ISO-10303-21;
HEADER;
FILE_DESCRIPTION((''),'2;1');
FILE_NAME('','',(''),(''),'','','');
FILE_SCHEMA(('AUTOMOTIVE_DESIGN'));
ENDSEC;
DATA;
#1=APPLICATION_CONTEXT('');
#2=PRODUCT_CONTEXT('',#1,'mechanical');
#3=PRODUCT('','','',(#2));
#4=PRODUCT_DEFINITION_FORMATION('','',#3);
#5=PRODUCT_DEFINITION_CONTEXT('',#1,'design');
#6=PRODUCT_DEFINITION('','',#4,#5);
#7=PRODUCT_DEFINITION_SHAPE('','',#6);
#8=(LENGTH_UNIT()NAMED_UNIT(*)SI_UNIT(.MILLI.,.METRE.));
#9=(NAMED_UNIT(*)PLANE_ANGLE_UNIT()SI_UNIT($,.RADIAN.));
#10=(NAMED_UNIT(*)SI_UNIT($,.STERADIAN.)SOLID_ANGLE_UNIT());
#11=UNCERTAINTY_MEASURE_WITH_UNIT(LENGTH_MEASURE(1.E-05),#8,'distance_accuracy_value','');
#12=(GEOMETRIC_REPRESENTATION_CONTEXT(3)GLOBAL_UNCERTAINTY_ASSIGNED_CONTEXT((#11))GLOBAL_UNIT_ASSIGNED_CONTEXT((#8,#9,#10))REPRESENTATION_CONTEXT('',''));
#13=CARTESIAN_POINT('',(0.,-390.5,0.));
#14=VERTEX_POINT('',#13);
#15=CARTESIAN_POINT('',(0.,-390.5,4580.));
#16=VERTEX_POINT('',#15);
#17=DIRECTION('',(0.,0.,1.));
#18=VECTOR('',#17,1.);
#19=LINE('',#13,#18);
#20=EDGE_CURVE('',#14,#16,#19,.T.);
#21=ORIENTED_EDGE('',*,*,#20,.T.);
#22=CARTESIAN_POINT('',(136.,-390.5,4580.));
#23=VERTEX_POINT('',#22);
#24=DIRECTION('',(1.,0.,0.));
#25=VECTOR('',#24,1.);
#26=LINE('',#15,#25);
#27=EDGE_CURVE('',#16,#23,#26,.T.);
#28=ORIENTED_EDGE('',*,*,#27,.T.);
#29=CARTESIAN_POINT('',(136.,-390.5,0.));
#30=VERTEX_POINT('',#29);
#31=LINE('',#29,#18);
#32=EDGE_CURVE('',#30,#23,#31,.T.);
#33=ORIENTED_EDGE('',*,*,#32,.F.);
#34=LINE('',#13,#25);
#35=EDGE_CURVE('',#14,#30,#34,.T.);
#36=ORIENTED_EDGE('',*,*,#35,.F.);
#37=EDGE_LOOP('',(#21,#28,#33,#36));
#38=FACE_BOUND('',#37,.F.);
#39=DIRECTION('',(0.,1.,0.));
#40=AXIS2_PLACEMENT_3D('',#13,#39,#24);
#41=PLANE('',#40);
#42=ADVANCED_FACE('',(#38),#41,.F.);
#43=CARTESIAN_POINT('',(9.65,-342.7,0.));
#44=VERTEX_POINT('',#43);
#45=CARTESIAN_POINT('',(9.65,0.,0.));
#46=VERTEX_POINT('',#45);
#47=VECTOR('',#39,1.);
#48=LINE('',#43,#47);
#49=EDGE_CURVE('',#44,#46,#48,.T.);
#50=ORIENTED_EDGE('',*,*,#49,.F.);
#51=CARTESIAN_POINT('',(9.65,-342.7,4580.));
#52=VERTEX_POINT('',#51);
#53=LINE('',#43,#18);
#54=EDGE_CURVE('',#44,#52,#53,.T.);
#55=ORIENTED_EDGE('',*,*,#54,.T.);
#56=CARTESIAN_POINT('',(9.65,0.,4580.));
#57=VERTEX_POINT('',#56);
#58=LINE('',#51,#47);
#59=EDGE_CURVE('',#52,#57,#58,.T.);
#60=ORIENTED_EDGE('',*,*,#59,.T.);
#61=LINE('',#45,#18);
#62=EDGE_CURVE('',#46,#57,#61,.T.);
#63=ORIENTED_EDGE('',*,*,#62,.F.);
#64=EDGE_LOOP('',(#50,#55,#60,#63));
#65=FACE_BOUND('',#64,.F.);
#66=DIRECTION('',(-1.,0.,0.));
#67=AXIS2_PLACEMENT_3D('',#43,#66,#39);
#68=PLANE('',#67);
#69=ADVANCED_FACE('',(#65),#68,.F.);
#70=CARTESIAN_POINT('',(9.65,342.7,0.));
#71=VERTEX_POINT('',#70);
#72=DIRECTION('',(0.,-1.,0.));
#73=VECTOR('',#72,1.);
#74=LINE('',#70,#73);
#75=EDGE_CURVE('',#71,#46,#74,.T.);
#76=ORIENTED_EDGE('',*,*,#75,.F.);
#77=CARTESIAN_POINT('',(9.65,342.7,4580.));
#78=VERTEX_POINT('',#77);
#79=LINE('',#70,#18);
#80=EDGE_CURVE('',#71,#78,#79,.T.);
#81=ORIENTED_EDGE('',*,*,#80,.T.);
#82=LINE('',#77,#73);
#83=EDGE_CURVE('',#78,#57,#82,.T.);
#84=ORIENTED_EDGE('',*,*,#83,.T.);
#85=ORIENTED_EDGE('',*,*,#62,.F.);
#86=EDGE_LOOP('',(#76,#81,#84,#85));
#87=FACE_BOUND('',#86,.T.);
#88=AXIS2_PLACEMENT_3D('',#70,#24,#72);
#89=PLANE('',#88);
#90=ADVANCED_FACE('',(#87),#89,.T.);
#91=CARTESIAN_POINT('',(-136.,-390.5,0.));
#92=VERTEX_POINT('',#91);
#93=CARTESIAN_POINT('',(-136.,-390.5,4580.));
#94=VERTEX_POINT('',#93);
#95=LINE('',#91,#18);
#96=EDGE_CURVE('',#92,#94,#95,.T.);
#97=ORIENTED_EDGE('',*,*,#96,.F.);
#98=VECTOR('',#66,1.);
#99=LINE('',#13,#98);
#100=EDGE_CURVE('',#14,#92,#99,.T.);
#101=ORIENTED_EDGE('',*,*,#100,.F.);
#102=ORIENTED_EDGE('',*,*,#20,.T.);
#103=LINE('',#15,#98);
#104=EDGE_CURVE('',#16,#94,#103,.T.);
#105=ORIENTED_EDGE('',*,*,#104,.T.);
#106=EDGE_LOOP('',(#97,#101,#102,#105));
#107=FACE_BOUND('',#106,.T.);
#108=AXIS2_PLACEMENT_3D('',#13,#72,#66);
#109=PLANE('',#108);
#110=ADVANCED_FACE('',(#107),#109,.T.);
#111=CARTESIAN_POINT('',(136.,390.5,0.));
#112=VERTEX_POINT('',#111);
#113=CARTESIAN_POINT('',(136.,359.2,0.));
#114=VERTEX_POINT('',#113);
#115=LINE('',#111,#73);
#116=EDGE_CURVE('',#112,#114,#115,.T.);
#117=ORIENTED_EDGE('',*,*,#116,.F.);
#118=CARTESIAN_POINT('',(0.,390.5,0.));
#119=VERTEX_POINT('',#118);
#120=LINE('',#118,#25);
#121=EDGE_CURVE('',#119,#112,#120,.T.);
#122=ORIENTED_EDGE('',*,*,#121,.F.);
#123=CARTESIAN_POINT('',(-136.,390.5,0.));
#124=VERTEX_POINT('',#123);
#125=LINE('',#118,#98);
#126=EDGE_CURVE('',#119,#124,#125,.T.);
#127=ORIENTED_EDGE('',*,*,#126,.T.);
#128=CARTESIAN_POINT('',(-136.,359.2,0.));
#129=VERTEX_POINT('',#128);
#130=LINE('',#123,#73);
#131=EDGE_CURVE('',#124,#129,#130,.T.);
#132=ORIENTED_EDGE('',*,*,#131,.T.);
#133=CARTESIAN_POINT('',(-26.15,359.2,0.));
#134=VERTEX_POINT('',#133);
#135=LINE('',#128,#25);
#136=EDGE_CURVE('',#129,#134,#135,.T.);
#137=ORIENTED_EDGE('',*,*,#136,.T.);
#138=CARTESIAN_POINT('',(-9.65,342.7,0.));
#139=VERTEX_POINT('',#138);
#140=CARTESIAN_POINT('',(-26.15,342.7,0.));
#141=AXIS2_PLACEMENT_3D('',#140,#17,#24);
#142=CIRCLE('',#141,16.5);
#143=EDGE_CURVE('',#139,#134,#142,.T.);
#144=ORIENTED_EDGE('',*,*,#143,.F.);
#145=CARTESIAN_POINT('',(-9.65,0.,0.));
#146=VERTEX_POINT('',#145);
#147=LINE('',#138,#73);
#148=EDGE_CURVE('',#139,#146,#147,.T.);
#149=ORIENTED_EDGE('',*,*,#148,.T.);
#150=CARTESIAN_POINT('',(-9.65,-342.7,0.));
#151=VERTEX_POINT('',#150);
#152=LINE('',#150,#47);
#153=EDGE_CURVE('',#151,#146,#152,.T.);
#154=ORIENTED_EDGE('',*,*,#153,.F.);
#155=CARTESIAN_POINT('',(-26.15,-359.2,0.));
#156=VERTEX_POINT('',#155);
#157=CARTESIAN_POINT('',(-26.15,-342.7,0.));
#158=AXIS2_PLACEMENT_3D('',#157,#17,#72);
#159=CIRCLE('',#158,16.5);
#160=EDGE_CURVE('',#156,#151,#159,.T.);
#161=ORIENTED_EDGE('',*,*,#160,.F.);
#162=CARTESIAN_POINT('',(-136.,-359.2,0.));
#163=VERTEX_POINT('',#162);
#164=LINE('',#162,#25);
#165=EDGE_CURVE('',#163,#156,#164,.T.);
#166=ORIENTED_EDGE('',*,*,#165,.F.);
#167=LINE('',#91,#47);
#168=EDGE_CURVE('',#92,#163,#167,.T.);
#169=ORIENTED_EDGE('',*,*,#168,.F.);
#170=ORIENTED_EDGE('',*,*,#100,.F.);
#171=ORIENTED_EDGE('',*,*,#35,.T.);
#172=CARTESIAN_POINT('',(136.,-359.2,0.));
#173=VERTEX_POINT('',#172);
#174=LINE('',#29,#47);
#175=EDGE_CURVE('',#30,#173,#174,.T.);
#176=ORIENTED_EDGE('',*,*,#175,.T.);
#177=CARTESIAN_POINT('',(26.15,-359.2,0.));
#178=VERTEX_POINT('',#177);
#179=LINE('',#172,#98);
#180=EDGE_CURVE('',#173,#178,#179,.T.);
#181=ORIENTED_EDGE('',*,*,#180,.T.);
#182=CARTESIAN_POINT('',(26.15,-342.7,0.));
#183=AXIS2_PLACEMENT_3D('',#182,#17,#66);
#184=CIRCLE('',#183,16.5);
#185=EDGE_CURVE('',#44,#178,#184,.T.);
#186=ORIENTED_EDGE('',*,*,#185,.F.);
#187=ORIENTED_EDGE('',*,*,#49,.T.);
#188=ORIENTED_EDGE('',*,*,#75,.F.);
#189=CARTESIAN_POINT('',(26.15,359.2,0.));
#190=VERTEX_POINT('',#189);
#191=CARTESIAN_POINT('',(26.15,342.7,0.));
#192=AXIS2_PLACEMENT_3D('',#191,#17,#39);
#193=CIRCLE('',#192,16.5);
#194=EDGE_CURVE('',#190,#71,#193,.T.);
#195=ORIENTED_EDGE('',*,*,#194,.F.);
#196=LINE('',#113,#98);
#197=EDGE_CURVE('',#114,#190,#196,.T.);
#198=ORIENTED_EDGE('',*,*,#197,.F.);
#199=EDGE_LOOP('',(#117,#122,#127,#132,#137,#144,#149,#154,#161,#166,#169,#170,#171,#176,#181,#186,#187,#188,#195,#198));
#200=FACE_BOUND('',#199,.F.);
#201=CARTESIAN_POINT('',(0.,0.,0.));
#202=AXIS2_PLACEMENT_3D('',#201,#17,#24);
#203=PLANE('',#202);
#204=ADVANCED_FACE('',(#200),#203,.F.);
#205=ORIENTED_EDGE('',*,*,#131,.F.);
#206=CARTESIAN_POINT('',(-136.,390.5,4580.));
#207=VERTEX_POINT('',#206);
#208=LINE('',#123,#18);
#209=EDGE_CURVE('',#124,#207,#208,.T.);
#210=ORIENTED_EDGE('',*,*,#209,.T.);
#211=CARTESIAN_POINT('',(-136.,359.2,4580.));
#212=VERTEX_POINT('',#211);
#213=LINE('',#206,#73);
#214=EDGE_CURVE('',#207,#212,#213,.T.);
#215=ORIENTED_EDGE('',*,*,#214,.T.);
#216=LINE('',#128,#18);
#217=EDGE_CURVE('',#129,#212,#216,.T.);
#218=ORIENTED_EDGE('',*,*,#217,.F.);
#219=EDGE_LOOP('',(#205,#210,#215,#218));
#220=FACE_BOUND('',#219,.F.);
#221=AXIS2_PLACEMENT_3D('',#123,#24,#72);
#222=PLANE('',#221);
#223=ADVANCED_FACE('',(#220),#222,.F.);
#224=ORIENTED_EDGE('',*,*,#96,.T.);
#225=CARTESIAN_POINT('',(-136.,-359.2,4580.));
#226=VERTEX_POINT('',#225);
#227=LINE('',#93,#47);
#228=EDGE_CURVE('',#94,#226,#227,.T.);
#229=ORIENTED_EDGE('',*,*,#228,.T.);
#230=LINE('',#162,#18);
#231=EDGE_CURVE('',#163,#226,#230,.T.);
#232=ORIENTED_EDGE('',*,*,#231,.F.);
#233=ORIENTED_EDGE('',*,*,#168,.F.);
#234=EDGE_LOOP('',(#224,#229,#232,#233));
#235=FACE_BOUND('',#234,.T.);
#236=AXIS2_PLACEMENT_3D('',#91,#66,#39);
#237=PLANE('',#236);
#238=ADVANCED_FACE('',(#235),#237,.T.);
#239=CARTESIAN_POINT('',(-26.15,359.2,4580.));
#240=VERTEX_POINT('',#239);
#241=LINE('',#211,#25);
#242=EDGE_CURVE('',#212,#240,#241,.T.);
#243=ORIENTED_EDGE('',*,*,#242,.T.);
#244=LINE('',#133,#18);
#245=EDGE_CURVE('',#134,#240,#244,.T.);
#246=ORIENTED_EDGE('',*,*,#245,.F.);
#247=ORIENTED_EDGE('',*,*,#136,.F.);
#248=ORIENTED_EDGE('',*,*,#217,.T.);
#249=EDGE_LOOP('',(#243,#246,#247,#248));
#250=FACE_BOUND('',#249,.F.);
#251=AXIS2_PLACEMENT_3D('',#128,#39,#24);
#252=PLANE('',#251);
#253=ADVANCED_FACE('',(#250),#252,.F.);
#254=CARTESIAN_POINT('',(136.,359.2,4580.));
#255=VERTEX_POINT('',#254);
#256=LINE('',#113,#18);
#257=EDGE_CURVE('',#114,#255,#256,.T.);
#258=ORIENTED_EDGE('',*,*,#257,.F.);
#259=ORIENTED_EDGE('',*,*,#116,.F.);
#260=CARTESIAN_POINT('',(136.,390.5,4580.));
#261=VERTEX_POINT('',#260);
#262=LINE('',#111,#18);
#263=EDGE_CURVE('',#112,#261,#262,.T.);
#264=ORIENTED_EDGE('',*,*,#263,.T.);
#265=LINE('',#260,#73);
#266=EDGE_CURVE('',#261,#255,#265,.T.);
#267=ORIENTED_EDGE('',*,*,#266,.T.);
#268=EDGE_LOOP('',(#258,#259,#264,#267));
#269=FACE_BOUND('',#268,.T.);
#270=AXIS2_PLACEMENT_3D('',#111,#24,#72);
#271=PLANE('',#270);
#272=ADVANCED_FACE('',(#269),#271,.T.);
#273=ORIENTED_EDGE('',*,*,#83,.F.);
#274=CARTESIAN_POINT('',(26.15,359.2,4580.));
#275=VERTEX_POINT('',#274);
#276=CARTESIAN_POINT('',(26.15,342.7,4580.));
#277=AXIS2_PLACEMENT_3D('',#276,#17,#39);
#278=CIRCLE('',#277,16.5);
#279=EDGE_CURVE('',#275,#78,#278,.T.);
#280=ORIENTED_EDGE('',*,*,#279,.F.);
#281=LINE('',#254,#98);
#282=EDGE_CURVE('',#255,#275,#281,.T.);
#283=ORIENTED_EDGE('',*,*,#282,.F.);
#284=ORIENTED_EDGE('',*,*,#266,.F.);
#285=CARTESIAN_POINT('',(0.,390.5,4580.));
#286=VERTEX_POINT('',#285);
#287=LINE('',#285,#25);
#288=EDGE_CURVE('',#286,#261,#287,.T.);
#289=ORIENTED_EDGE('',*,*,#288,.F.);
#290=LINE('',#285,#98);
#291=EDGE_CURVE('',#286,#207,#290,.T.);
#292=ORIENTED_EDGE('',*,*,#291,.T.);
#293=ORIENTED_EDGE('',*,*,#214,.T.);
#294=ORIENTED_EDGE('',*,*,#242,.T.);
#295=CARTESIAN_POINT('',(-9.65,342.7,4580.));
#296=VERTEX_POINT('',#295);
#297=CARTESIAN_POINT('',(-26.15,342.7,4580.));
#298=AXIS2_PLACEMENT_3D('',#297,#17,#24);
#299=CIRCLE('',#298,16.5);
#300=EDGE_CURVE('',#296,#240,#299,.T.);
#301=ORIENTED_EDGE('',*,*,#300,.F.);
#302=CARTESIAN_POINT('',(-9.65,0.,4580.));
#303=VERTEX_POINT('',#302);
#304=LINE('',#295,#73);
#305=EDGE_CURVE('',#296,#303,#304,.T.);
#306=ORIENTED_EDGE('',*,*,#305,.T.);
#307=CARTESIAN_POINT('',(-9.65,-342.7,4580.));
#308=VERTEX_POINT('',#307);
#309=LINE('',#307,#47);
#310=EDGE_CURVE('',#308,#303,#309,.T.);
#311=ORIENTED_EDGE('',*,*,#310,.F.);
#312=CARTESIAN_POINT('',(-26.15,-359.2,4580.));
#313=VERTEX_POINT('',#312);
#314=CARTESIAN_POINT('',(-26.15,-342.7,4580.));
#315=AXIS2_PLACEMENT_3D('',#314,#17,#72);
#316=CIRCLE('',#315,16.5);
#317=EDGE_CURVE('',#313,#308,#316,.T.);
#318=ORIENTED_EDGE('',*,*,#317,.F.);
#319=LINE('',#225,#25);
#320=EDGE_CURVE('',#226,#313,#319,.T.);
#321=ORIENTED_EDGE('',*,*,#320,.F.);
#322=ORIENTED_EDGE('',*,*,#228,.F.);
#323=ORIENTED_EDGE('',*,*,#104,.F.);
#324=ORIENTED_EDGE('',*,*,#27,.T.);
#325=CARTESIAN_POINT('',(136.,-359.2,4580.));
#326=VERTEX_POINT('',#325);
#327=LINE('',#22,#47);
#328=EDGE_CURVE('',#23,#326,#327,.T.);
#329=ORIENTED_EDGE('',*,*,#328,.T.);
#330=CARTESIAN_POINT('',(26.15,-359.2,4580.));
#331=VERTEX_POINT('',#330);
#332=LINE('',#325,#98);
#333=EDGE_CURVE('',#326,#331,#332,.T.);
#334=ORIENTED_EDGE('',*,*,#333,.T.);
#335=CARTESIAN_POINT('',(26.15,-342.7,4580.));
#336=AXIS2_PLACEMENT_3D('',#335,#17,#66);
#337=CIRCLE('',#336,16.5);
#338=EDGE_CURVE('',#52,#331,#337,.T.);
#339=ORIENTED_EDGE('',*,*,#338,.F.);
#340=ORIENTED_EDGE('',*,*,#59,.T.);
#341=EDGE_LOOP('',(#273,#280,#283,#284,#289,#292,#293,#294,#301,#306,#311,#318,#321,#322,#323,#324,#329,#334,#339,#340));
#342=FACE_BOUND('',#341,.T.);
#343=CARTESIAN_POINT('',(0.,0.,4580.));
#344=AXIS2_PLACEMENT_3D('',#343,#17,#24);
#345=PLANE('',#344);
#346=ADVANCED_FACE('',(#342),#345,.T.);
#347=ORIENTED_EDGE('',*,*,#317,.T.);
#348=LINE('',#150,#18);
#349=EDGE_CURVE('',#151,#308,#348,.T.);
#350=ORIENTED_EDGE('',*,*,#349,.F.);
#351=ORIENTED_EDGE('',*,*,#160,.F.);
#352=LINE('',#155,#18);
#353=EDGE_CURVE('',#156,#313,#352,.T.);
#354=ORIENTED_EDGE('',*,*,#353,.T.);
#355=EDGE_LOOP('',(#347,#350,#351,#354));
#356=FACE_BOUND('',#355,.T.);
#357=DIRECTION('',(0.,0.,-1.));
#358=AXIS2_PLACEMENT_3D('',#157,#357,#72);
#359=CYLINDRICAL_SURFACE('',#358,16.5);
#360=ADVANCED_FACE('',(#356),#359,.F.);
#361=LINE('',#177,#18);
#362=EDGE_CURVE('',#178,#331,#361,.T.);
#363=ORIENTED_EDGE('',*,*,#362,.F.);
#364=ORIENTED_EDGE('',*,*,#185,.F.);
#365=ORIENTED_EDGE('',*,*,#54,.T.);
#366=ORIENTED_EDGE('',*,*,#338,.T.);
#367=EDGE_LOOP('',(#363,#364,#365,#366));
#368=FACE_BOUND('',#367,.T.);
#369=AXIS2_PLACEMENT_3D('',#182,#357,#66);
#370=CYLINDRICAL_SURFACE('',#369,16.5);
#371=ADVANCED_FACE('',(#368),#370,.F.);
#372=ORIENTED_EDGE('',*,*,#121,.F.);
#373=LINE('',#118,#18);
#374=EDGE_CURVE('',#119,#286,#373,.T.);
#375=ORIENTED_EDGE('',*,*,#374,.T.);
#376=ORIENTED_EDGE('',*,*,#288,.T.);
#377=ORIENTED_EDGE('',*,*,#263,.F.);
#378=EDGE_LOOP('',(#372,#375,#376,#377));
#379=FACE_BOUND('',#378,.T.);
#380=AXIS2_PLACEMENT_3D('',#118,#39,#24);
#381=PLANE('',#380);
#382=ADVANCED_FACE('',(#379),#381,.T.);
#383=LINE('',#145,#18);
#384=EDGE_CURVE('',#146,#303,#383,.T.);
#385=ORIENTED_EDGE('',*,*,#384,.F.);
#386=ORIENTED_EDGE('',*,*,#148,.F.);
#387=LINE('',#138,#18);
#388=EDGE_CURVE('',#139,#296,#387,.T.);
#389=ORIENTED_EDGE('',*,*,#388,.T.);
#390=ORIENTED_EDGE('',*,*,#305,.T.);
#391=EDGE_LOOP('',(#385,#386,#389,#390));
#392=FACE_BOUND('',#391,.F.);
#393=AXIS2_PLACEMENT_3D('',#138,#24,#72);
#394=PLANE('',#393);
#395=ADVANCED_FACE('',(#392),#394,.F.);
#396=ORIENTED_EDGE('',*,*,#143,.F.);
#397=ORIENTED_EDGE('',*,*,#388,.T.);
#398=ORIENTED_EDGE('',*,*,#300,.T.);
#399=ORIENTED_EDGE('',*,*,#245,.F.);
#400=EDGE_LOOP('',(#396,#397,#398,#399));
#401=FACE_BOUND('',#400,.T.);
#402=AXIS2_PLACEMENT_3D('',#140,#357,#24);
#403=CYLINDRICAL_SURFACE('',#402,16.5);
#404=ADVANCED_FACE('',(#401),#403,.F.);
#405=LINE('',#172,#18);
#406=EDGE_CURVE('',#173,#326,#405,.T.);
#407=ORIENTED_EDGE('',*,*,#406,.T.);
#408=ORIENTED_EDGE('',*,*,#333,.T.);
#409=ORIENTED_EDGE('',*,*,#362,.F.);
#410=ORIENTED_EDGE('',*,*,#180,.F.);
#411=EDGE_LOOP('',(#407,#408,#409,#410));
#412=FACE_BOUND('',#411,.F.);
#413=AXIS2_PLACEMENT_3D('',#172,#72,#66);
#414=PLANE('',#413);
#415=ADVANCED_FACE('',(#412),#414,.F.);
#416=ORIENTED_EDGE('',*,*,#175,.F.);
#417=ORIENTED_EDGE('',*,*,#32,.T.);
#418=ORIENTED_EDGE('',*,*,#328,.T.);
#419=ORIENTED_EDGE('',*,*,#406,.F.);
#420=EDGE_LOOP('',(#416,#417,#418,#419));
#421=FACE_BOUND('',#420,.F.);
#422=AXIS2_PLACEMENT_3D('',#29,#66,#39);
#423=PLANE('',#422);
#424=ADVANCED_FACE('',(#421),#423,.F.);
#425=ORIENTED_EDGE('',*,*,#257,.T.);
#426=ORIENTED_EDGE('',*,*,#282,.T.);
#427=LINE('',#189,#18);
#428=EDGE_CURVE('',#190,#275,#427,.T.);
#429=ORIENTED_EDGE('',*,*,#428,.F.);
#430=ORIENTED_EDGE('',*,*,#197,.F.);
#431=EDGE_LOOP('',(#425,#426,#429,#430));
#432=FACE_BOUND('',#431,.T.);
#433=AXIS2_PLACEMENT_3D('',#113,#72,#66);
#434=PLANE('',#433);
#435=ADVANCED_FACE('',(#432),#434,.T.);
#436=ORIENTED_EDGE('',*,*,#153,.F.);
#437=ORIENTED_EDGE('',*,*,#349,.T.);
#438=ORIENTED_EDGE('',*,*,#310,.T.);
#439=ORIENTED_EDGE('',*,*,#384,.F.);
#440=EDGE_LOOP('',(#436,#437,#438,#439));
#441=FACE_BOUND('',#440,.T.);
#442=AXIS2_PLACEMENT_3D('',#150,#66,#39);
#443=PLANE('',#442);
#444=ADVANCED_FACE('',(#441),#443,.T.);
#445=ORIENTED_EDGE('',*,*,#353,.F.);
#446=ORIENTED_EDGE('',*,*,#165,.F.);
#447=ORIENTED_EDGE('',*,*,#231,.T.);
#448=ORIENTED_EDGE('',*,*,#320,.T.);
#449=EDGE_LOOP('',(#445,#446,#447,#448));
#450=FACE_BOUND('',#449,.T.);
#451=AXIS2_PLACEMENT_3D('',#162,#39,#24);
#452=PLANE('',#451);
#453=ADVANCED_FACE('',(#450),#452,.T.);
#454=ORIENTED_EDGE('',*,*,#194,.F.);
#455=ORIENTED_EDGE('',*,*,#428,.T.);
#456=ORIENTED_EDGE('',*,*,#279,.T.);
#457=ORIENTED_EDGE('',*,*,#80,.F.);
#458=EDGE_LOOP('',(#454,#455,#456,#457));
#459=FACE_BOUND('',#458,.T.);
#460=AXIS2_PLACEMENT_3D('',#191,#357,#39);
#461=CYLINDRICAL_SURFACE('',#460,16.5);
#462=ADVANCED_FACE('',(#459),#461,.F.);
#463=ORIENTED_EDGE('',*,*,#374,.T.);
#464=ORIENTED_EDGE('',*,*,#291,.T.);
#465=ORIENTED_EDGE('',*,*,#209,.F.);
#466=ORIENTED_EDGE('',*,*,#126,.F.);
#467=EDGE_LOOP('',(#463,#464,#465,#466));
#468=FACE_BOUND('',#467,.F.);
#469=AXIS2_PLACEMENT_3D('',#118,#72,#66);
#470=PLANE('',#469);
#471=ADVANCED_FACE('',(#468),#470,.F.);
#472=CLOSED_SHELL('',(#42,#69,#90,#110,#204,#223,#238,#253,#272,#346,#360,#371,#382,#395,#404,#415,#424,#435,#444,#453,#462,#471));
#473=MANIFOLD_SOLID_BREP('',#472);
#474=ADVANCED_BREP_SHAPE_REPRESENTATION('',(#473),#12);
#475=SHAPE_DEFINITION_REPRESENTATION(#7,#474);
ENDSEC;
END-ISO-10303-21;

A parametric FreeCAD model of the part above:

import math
import FreeCAD as App
import Part
import Sketcher

V = App.Vector

doc = App.newDocument("Part")
params = doc.addObject("Spreadsheet::Sheet", "Params")
for row, (alias, value) in enumerate([
    ("sketch1_radius", "16.5 mm"),
    ("sketch1_height", "31.3 mm"),
    ("pad1_length", "4580 mm"),
], start=1):
    params.set(f"A{row}", alias)
    params.set(f"B{row}", "=" + value)
    params.setAlias(f"B{row}", alias)

body = doc.addObject("PartDesign::Body", "Body")

# Sketch on XY plane
sketch1 = body.newObject("Sketcher::SketchObject", "Sketch")
sketch1.AttachmentSupport = (doc.getObject("XY_Plane"), [""])
sketch1.MapMode = "FlatFace"
sketch1.addGeometry(Part.LineSegment(V(-136, -359.2, 0), V(-136, -390.5, 0)), False)
sketch1.addGeometry(Part.LineSegment(V(-136, -390.5, 0), V(136, -390.5, 0)), False)
sketch1.addGeometry(Part.LineSegment(V(136, -390.5, 0), V(136, -359.2, 0)), False)
sketch1.addGeometry(Part.LineSegment(V(136, -359.2, 0), V(26.15, -359.2, 0)), False)
sketch1.addGeometry(Part.ArcOfCircle(Part.Circle(V(26.15, -342.7, 0), V(0, 0, 1), 16.5), math.radians(180), math.radians(270)), False)
sketch1.addGeometry(Part.LineSegment(V(9.65, -342.7, 0), V(9.65, 342.7, 0)), False)
sketch1.addGeometry(Part.ArcOfCircle(Part.Circle(V(26.15, 342.7, 0), V(0, 0, 1), 16.5), math.radians(90), math.radians(180)), False)
sketch1.addGeometry(Part.LineSegment(V(26.15, 359.2, 0), V(136, 359.2, 0)), False)
sketch1.addGeometry(Part.LineSegment(V(136, 359.2, 0), V(136, 390.5, 0)), False)
sketch1.addGeometry(Part.LineSegment(V(136, 390.5, 0), V(-136, 390.5, 0)), False)
sketch1.addGeometry(Part.LineSegment(V(-136, 390.5, 0), V(-136, 359.2, 0)), False)
sketch1.addGeometry(Part.LineSegment(V(-136, 359.2, 0), V(-26.15, 359.2, 0)), False)
sketch1.addGeometry(Part.ArcOfCircle(Part.Circle(V(-26.15, 342.7, 0), V(0, 0, 1), 16.5), math.radians(0), math.radians(90)), False)
sketch1.addGeometry(Part.LineSegment(V(-9.65, 342.7, 0), V(-9.65, -342.7, 0)), False)
sketch1.addGeometry(Part.ArcOfCircle(Part.Circle(V(-26.15, -342.7, 0), V(0, 0, 1), 16.5), math.radians(-90), math.radians(0)), False)
sketch1.addGeometry(Part.LineSegment(V(-26.15, -359.2, 0), V(-136, -359.2, 0)), False)
sketch1.addConstraint(Sketcher.Constraint("Coincident", 0, 2, 1, 1))
sketch1.addConstraint(Sketcher.Constraint("Coincident", 1, 2, 2, 1))
sketch1.addConstraint(Sketcher.Constraint("Coincident", 2, 2, 3, 1))
sketch1.addConstraint(Sketcher.Constraint("Tangent", 3, 2, 4, 2))
sketch1.addConstraint(Sketcher.Constraint("Tangent", 4, 1, 5, 1))
sketch1.addConstraint(Sketcher.Constraint("Tangent", 5, 2, 6, 2))
sketch1.addConstraint(Sketcher.Constraint("Tangent", 6, 1, 7, 1))
sketch1.addConstraint(Sketcher.Constraint("Coincident", 7, 2, 8, 1))
sketch1.addConstraint(Sketcher.Constraint("Coincident", 8, 2, 9, 1))
sketch1.addConstraint(Sketcher.Constraint("Coincident", 9, 2, 10, 1))
sketch1.addConstraint(Sketcher.Constraint("Coincident", 10, 2, 11, 1))
sketch1.addConstraint(Sketcher.Constraint("Tangent", 11, 2, 12, 2))
sketch1.addConstraint(Sketcher.Constraint("Tangent", 12, 1, 13, 1))
sketch1.addConstraint(Sketcher.Constraint("Tangent", 13, 2, 14, 2))
sketch1.addConstraint(Sketcher.Constraint("Tangent", 14, 1, 15, 1))
sketch1.addConstraint(Sketcher.Constraint("Coincident", 15, 2, 0, 1))
sketch1.addConstraint(Sketcher.Constraint("Vertical", 0))
sketch1.addConstraint(Sketcher.Constraint("Horizontal", 1))
sketch1.addConstraint(Sketcher.Constraint("Vertical", 2))
sketch1.addConstraint(Sketcher.Constraint("Horizontal", 3))
sketch1.addConstraint(Sketcher.Constraint("Vertical", 5))
sketch1.addConstraint(Sketcher.Constraint("Horizontal", 7))
sketch1.addConstraint(Sketcher.Constraint("Vertical", 8))
sketch1.addConstraint(Sketcher.Constraint("Horizontal", 9))
sketch1.addConstraint(Sketcher.Constraint("Vertical", 10))
sketch1.addConstraint(Sketcher.Constraint("Horizontal", 11))
sketch1.addConstraint(Sketcher.Constraint("Vertical", 13))
sketch1.addConstraint(Sketcher.Constraint("Horizontal", 15))
sketch1.addConstraint(Sketcher.Constraint("Equal", 4, 6))
sketch1.addConstraint(Sketcher.Constraint("Equal", 6, 12))
sketch1.addConstraint(Sketcher.Constraint("Equal", 12, 14))
sketch1.addConstraint(Sketcher.Constraint("Symmetric", 4, 3, 12, 3, -1, 1))
sketch1.addConstraint(Sketcher.Constraint("Symmetric", 0, 2, 8, 2, -1, 1))
sketch1.addConstraint(Sketcher.Constraint("Symmetric", 7, 2, 10, 2, -2))
sketch1.addConstraint(Sketcher.Constraint("Symmetric", 2, 2, 15, 2, -2))
sketch1.addConstraint(Sketcher.Constraint("Radius", 4, 16.5))
sketch1.addConstraint(Sketcher.Constraint("DistanceY", 0, 2, 0, 1, 31.3))
sketch1.addConstraint(Sketcher.Constraint("DistanceX", 0, 2, -1, 1, 136.0))
sketch1.addConstraint(Sketcher.Constraint("DistanceY", 0, 2, -1, 1, 390.5))
sketch1.addConstraint(Sketcher.Constraint("DistanceX", -1, 1, 4, 1, 9.65))
sketch1.setExpression("Constraints[35]", "Params.sketch1_radius")
sketch1.setExpression("Constraints[36]", "Params.sketch1_height")
pad1 = body.newObject("PartDesign::Pad", "Pad")
pad1.Profile = sketch1
pad1.setExpression("Length", "Params.pad1_length")

doc.recompute()
